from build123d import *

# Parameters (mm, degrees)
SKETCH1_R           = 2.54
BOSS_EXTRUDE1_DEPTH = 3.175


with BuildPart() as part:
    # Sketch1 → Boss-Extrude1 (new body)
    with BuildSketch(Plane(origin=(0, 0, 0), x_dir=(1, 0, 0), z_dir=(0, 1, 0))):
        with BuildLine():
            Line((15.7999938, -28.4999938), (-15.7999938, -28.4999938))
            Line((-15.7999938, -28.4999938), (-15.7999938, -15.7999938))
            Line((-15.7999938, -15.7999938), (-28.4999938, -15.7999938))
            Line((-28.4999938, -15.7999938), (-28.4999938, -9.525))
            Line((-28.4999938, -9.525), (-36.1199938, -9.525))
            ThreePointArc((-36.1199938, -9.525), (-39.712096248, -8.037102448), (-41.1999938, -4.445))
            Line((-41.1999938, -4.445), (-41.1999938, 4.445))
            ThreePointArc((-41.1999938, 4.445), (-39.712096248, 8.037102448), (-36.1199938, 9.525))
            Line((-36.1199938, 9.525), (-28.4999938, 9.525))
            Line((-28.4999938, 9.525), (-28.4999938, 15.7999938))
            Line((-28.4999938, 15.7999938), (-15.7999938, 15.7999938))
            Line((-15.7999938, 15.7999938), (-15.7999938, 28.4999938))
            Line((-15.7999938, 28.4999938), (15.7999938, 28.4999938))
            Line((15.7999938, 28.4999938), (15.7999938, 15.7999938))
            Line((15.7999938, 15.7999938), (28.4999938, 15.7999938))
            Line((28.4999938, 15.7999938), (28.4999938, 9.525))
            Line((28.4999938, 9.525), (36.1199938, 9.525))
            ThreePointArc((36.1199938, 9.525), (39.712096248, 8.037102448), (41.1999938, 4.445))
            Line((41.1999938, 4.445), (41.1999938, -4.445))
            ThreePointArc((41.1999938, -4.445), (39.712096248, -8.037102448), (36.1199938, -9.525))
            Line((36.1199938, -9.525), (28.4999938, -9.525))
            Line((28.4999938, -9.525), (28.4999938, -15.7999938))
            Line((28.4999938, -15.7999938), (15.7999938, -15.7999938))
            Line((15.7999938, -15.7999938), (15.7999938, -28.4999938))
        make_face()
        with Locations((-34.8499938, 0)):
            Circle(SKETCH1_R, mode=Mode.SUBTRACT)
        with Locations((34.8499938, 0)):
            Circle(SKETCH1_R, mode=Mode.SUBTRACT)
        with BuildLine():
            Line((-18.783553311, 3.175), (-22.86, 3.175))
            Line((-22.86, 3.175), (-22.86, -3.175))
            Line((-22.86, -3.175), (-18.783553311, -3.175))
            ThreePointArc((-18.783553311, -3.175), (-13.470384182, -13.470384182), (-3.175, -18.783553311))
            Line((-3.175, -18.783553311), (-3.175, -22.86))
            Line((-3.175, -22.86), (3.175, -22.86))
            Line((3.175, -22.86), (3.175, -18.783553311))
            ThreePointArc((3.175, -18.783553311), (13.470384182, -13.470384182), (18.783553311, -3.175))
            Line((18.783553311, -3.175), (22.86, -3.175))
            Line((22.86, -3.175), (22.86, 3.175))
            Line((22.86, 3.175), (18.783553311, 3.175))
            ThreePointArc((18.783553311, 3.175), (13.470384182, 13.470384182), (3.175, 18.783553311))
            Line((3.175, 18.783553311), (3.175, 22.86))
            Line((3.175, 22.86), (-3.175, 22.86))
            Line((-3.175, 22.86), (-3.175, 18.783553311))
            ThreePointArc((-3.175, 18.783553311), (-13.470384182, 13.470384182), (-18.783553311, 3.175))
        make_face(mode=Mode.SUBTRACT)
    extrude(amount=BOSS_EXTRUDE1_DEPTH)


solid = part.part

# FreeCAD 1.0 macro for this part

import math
import FreeCAD as App
import Part
import Sketcher
from FreeCAD import Vector
Q = App.Units.Quantity

doc = App.newDocument("Part")
body = doc.addObject("PartDesign::Body", "Body")

sketch1 = body.newObject("Sketcher::SketchObject", "Sketch")
sketch1.AttachmentSupport = (doc.getObject("XZ_Plane"), [""])
sketch1.MapMode = "FlatFace"
sketch1.addGeometry([
    Part.LineSegment(Vector(-15.799994, 28.499994, 0), Vector(15.799994, 28.499994, 0)),
    Part.LineSegment(Vector(15.799994, 28.499994, 0), Vector(15.799994, 15.799994, 0)),
    Part.LineSegment(Vector(15.799994, 15.799994, 0), Vector(28.499994, 15.799994, 0)),
    Part.LineSegment(Vector(28.499994, 15.799994, 0), Vector(28.499994, 9.525, 0)),
    Part.LineSegment(Vector(28.499994, 9.525, 0), Vector(36.119994, 9.525, 0)),
    Part.ArcOfCircle(Part.Circle(Vector(36.119994, 4.445, 0), Vector(0, 0, 1), 5.08), math.radians(0), math.radians(90)),
    Part.LineSegment(Vector(41.199994, 4.445, 0), Vector(41.199994, -4.445, 0)),
    Part.ArcOfCircle(Part.Circle(Vector(36.119994, -4.445, 0), Vector(0, 0, 1), 5.08), math.radians(-90), math.radians(0)),
    Part.LineSegment(Vector(36.119994, -9.525, 0), Vector(28.499994, -9.525, 0)),
    Part.LineSegment(Vector(28.499994, -9.525, 0), Vector(28.499994, -15.799994, 0)),
    Part.LineSegment(Vector(28.499994, -15.799994, 0), Vector(15.799994, -15.799994, 0)),
    Part.LineSegment(Vector(15.799994, -15.799994, 0), Vector(15.799994, -28.499994, 0)),
    Part.LineSegment(Vector(15.799994, -28.499994, 0), Vector(-15.799994, -28.499994, 0)),
    Part.LineSegment(Vector(-15.799994, -28.499994, 0), Vector(-15.799994, -15.799994, 0)),
    Part.LineSegment(Vector(-15.799994, -15.799994, 0), Vector(-28.499994, -15.799994, 0)),
    Part.LineSegment(Vector(-28.499994, -15.799994, 0), Vector(-28.499994, -9.525, 0)),
    Part.LineSegment(Vector(-28.499994, -9.525, 0), Vector(-36.119994, -9.525, 0)),
    Part.ArcOfCircle(Part.Circle(Vector(-36.119994, -4.445, 0), Vector(0, 0, 1), 5.08), math.radians(-180), math.radians(-90)),
    Part.LineSegment(Vector(-41.199994, -4.445, 0), Vector(-41.199994, 4.445, 0)),
    Part.ArcOfCircle(Part.Circle(Vector(-36.119994, 4.445, 0), Vector(0, 0, 1), 5.08), math.radians(90), math.radians(180)),
    Part.LineSegment(Vector(-36.119994, 9.525, 0), Vector(-28.499994, 9.525, 0)),
    Part.LineSegment(Vector(-28.499994, 9.525, 0), Vector(-28.499994, 15.799994, 0)),
    Part.LineSegment(Vector(-28.499994, 15.799994, 0), Vector(-15.799994, 15.799994, 0)),
    Part.LineSegment(Vector(-15.799994, 15.799994, 0), Vector(-15.799994, 28.499994, 0)),
    Part.Circle(Vector(34.849994, 0, 0), Vector(0, 0, 1), 2.54),
    Part.ArcOfCircle(Part.Circle(Vector(0, 0, 0), Vector(0, 0, 1), 19.05), math.radians(-170.405932), math.radians(-99.594068)),
    Part.LineSegment(Vector(-3.175, -18.783553, 0), Vector(-3.175, -22.86, 0)),
    Part.LineSegment(Vector(-3.175, -22.86, 0), Vector(3.175, -22.86, 0)),
    Part.LineSegment(Vector(3.175, -22.86, 0), Vector(3.175, -18.783553, 0)),
    Part.ArcOfCircle(Part.Circle(Vector(0, 0, 0), Vector(0, 0, 1), 19.05), math.radians(-80.405932), math.radians(-9.594068)),
    Part.LineSegment(Vector(18.783553, -3.175, 0), Vector(22.86, -3.175, 0)),
    Part.LineSegment(Vector(22.86, -3.175, 0), Vector(22.86, 3.175, 0)),
    Part.LineSegment(Vector(22.86, 3.175, 0), Vector(18.783553, 3.175, 0)),
    Part.ArcOfCircle(Part.Circle(Vector(0, 0, 0), Vector(0, 0, 1), 19.05), math.radians(9.594068), math.radians(80.405932)),
    Part.LineSegment(Vector(3.175, 18.783553, 0), Vector(3.175, 22.86, 0)),
    Part.LineSegment(Vector(3.175, 22.86, 0), Vector(-3.175, 22.86, 0)),
    Part.LineSegment(Vector(-3.175, 22.86, 0), Vector(-3.175, 18.783553, 0)),
    Part.ArcOfCircle(Part.Circle(Vector(0, 0, 0), Vector(0, 0, 1), 19.05), math.radians(99.594068), math.radians(170.405932)),
    Part.LineSegment(Vector(-18.783553, 3.175, 0), Vector(-22.86, 3.175, 0)),
    Part.LineSegment(Vector(-22.86, 3.175, 0), Vector(-22.86, -3.175, 0)),
    Part.LineSegment(Vector(-22.86, -3.175, 0), Vector(-18.783553, -3.175, 0)),
    Part.Circle(Vector(-34.849994, 0, 0), Vector(0, 0, 1), 2.54),
], False)
sketch1.addConstraint([
    Sketcher.Constraint("Coincident", 0, 2, 1, 1),
    Sketcher.Constraint("Coincident", 1, 2, 2, 1),
    Sketcher.Constraint("Coincident", 2, 2, 3, 1),
    Sketcher.Constraint("Coincident", 3, 2, 4, 1),
    Sketcher.Constraint("Tangent", 4, 2, 5, 2),
    Sketcher.Constraint("Tangent", 5, 1, 6, 1),
    Sketcher.Constraint("Tangent", 6, 2, 7, 2),
    Sketcher.Constraint("Tangent", 7, 1, 8, 1),
    Sketcher.Constraint("Coincident", 8, 2, 9, 1),
    Sketcher.Constraint("Coincident", 9, 2, 10, 1),
    Sketcher.Constraint("Coincident", 10, 2, 11, 1),
    Sketcher.Constraint("Coincident", 11, 2, 12, 1),
    Sketcher.Constraint("Coincident", 12, 2, 13, 1),
    Sketcher.Constraint("Coincident", 13, 2, 14, 1),
    Sketcher.Constraint("Coincident", 14, 2, 15, 1),
    Sketcher.Constraint("Coincident", 15, 2, 16, 1),
    Sketcher.Constraint("Tangent", 16, 2, 17, 2),
    Sketcher.Constraint("Tangent", 17, 1, 18, 1),
    Sketcher.Constraint("Tangent", 18, 2, 19, 2),
    Sketcher.Constraint("Tangent", 19, 1, 20, 1),
    Sketcher.Constraint("Coincident", 20, 2, 21, 1),
    Sketcher.Constraint("Coincident", 21, 2, 22, 1),
    Sketcher.Constraint("Coincident", 22, 2, 23, 1),
    Sketcher.Constraint("Coincident", 23, 2, 0, 1),
    Sketcher.Constraint("Coincident", 25, 2, 26, 1),
    Sketcher.Constraint("Coincident", 26, 2, 27, 1),
    Sketcher.Constraint("Coincident", 27, 2, 28, 1),
    Sketcher.Constraint("Coincident", 28, 2, 29, 1),
    Sketcher.Constraint("Coincident", 29, 2, 30, 1),
    Sketcher.Constraint("Coincident", 30, 2, 31, 1),
    Sketcher.Constraint("Coincident", 31, 2, 32, 1),
    Sketcher.Constraint("Coincident", 32, 2, 33, 1),
    Sketcher.Constraint("Coincident", 33, 2, 34, 1),
    Sketcher.Constraint("Coincident", 34, 2, 35, 1),
    Sketcher.Constraint("Coincident", 35, 2, 36, 1),
    Sketcher.Constraint("Coincident", 36, 2, 37, 1),
    Sketcher.Constraint("Coincident", 37, 2, 38, 1),
    Sketcher.Constraint("Coincident", 38, 2, 39, 1),
    Sketcher.Constraint("Coincident", 39, 2, 40, 1),
    Sketcher.Constraint("Coincident", 40, 2, 25, 1),
    Sketcher.Constraint("Horizontal", 0),
    Sketcher.Constraint("Vertical", 1),
    Sketcher.Constraint("Horizontal", 2),
    Sketcher.Constraint("Vertical", 3),
    Sketcher.Constraint("Horizontal", 4),
    Sketcher.Constraint("Vertical", 6),
    Sketcher.Constraint("Horizontal", 8),
    Sketcher.Constraint("Vertical", 9),
    Sketcher.Constraint("Horizontal", 10),
    Sketcher.Constraint("Vertical", 11),
    Sketcher.Constraint("Horizontal", 12),
    Sketcher.Constraint("Vertical", 13),
    Sketcher.Constraint("Horizontal", 14),
    Sketcher.Constraint("Vertical", 15),
    Sketcher.Constraint("Horizontal", 16),
    Sketcher.Constraint("Vertical", 18),
    Sketcher.Constraint("Horizontal", 20),
    Sketcher.Constraint("Vertical", 21),
    Sketcher.Constraint("Horizontal", 22),
    Sketcher.Constraint("Vertical", 23),
    Sketcher.Constraint("Vertical", 26),
    Sketcher.Constraint("Horizontal", 27),
    Sketcher.Constraint("Vertical", 28),
    Sketcher.Constraint("Horizontal", 30),
    Sketcher.Constraint("Vertical", 31),
    Sketcher.Constraint("Horizontal", 32),
    Sketcher.Constraint("Vertical", 34),
    Sketcher.Constraint("Horizontal", 35),
    Sketcher.Constraint("Vertical", 36),
    Sketcher.Constraint("Horizontal", 38),
    Sketcher.Constraint("Vertical", 39),
    Sketcher.Constraint("Horizontal", 40),
    Sketcher.Constraint("Coincident", 25, 3, -1, 1),
    Sketcher.Constraint("Coincident", 29, 3, -1, 1),
    Sketcher.Constraint("Coincident", 33, 3, -1, 1),
    Sketcher.Constraint("Coincident", 37, 3, -1, 1),
    Sketcher.Constraint("Equal", 5, 7),
    Sketcher.Constraint("Equal", 7, 17),
    Sketcher.Constraint("Equal", 17, 19),
    Sketcher.Constraint("Equal", 25, 29),
    Sketcher.Constraint("Equal", 29, 33),
    Sketcher.Constraint("Equal", 33, 37),
    Sketcher.Constraint("Equal", 24, 41),
    Sketcher.Constraint("Symmetric", 5, 3, 17, 3, -1, 1),
    Sketcher.Constraint("Symmetric", 24, 3, 41, 3, -1, 1),
    Sketcher.Constraint("Symmetric", 0, 2, 12, 2, -1, 1),
    Sketcher.Constraint("Symmetric", 2, 2, 14, 2, -1, 1),
    Sketcher.Constraint("Symmetric", 8, 2, 20, 2, -1, 1),
    Sketcher.Constraint("Symmetric", 10, 2, 22, 2, -1, 1),
    Sketcher.Constraint("Symmetric", 26, 2, 34, 2, -1, 1),
    Sketcher.Constraint("Symmetric", 30, 2, 38, 2, -1, 1),
    Sketcher.Constraint("Symmetric", 10, 2, 13, 2, -2),
    Sketcher.Constraint("Symmetric", 8, 2, 15, 2, -2),
    Sketcher.Constraint("PointOnObject", 24, 3, -1),
    Sketcher.Constraint("Horizontal", 25, 2, 28, 2),
    Sketcher.Constraint("Horizontal", 33, 2, 36, 2),
    Sketcher.Constraint("Horizontal", 32, 2, 37, 2),
    Sketcher.Constraint("Horizontal", 30, 2, 39, 2),
    Sketcher.Constraint("Equal", 22, 1),
    Sketcher.Constraint("Equal", 40, 26),
    Sketcher.Constraint("Equal", 35, 31),
    Sketcher.Constraint("Diameter", 24, Q("0.2 in")),
    Sketcher.Constraint("Radius", 5, Q("0.2 in")),
    Sketcher.Constraint("Radius", 25, Q("0.75 in")),
    Sketcher.Constraint("DistanceX", 2, 1, 2, 2, Q("0.5 in")),
    Sketcher.Constraint("DistanceX", 4, 1, 4, 2, Q("0.3 in")),
    Sketcher.Constraint("DistanceX", 27, 1, 27, 2, Q("0.25 in")),
    Sketcher.Constraint("DistanceY", 6, 2, 6, 1, Q("0.35 in")),
    Sketcher.Constraint("DistanceY", 26, 2, -1, 1, Q("0.9 in")),
    Sketcher.Constraint("DistanceX", 24, 3, 5, 3, Q("0.05 in")),
    Sketcher.Constraint("DistanceX", 0, 1, 0, 2, Q("31.599988 mm")),
    Sketcher.Constraint("DistanceY", 3, 2, 3, 1, Q("6.274994 mm")),
])
pad1 = body.newObject("PartDesign::Pad", "Pad")
pad1.Profile = sketch1
pad1.Length = Q("0.125 in")
pad1.Reversed = True

doc.recompute()
